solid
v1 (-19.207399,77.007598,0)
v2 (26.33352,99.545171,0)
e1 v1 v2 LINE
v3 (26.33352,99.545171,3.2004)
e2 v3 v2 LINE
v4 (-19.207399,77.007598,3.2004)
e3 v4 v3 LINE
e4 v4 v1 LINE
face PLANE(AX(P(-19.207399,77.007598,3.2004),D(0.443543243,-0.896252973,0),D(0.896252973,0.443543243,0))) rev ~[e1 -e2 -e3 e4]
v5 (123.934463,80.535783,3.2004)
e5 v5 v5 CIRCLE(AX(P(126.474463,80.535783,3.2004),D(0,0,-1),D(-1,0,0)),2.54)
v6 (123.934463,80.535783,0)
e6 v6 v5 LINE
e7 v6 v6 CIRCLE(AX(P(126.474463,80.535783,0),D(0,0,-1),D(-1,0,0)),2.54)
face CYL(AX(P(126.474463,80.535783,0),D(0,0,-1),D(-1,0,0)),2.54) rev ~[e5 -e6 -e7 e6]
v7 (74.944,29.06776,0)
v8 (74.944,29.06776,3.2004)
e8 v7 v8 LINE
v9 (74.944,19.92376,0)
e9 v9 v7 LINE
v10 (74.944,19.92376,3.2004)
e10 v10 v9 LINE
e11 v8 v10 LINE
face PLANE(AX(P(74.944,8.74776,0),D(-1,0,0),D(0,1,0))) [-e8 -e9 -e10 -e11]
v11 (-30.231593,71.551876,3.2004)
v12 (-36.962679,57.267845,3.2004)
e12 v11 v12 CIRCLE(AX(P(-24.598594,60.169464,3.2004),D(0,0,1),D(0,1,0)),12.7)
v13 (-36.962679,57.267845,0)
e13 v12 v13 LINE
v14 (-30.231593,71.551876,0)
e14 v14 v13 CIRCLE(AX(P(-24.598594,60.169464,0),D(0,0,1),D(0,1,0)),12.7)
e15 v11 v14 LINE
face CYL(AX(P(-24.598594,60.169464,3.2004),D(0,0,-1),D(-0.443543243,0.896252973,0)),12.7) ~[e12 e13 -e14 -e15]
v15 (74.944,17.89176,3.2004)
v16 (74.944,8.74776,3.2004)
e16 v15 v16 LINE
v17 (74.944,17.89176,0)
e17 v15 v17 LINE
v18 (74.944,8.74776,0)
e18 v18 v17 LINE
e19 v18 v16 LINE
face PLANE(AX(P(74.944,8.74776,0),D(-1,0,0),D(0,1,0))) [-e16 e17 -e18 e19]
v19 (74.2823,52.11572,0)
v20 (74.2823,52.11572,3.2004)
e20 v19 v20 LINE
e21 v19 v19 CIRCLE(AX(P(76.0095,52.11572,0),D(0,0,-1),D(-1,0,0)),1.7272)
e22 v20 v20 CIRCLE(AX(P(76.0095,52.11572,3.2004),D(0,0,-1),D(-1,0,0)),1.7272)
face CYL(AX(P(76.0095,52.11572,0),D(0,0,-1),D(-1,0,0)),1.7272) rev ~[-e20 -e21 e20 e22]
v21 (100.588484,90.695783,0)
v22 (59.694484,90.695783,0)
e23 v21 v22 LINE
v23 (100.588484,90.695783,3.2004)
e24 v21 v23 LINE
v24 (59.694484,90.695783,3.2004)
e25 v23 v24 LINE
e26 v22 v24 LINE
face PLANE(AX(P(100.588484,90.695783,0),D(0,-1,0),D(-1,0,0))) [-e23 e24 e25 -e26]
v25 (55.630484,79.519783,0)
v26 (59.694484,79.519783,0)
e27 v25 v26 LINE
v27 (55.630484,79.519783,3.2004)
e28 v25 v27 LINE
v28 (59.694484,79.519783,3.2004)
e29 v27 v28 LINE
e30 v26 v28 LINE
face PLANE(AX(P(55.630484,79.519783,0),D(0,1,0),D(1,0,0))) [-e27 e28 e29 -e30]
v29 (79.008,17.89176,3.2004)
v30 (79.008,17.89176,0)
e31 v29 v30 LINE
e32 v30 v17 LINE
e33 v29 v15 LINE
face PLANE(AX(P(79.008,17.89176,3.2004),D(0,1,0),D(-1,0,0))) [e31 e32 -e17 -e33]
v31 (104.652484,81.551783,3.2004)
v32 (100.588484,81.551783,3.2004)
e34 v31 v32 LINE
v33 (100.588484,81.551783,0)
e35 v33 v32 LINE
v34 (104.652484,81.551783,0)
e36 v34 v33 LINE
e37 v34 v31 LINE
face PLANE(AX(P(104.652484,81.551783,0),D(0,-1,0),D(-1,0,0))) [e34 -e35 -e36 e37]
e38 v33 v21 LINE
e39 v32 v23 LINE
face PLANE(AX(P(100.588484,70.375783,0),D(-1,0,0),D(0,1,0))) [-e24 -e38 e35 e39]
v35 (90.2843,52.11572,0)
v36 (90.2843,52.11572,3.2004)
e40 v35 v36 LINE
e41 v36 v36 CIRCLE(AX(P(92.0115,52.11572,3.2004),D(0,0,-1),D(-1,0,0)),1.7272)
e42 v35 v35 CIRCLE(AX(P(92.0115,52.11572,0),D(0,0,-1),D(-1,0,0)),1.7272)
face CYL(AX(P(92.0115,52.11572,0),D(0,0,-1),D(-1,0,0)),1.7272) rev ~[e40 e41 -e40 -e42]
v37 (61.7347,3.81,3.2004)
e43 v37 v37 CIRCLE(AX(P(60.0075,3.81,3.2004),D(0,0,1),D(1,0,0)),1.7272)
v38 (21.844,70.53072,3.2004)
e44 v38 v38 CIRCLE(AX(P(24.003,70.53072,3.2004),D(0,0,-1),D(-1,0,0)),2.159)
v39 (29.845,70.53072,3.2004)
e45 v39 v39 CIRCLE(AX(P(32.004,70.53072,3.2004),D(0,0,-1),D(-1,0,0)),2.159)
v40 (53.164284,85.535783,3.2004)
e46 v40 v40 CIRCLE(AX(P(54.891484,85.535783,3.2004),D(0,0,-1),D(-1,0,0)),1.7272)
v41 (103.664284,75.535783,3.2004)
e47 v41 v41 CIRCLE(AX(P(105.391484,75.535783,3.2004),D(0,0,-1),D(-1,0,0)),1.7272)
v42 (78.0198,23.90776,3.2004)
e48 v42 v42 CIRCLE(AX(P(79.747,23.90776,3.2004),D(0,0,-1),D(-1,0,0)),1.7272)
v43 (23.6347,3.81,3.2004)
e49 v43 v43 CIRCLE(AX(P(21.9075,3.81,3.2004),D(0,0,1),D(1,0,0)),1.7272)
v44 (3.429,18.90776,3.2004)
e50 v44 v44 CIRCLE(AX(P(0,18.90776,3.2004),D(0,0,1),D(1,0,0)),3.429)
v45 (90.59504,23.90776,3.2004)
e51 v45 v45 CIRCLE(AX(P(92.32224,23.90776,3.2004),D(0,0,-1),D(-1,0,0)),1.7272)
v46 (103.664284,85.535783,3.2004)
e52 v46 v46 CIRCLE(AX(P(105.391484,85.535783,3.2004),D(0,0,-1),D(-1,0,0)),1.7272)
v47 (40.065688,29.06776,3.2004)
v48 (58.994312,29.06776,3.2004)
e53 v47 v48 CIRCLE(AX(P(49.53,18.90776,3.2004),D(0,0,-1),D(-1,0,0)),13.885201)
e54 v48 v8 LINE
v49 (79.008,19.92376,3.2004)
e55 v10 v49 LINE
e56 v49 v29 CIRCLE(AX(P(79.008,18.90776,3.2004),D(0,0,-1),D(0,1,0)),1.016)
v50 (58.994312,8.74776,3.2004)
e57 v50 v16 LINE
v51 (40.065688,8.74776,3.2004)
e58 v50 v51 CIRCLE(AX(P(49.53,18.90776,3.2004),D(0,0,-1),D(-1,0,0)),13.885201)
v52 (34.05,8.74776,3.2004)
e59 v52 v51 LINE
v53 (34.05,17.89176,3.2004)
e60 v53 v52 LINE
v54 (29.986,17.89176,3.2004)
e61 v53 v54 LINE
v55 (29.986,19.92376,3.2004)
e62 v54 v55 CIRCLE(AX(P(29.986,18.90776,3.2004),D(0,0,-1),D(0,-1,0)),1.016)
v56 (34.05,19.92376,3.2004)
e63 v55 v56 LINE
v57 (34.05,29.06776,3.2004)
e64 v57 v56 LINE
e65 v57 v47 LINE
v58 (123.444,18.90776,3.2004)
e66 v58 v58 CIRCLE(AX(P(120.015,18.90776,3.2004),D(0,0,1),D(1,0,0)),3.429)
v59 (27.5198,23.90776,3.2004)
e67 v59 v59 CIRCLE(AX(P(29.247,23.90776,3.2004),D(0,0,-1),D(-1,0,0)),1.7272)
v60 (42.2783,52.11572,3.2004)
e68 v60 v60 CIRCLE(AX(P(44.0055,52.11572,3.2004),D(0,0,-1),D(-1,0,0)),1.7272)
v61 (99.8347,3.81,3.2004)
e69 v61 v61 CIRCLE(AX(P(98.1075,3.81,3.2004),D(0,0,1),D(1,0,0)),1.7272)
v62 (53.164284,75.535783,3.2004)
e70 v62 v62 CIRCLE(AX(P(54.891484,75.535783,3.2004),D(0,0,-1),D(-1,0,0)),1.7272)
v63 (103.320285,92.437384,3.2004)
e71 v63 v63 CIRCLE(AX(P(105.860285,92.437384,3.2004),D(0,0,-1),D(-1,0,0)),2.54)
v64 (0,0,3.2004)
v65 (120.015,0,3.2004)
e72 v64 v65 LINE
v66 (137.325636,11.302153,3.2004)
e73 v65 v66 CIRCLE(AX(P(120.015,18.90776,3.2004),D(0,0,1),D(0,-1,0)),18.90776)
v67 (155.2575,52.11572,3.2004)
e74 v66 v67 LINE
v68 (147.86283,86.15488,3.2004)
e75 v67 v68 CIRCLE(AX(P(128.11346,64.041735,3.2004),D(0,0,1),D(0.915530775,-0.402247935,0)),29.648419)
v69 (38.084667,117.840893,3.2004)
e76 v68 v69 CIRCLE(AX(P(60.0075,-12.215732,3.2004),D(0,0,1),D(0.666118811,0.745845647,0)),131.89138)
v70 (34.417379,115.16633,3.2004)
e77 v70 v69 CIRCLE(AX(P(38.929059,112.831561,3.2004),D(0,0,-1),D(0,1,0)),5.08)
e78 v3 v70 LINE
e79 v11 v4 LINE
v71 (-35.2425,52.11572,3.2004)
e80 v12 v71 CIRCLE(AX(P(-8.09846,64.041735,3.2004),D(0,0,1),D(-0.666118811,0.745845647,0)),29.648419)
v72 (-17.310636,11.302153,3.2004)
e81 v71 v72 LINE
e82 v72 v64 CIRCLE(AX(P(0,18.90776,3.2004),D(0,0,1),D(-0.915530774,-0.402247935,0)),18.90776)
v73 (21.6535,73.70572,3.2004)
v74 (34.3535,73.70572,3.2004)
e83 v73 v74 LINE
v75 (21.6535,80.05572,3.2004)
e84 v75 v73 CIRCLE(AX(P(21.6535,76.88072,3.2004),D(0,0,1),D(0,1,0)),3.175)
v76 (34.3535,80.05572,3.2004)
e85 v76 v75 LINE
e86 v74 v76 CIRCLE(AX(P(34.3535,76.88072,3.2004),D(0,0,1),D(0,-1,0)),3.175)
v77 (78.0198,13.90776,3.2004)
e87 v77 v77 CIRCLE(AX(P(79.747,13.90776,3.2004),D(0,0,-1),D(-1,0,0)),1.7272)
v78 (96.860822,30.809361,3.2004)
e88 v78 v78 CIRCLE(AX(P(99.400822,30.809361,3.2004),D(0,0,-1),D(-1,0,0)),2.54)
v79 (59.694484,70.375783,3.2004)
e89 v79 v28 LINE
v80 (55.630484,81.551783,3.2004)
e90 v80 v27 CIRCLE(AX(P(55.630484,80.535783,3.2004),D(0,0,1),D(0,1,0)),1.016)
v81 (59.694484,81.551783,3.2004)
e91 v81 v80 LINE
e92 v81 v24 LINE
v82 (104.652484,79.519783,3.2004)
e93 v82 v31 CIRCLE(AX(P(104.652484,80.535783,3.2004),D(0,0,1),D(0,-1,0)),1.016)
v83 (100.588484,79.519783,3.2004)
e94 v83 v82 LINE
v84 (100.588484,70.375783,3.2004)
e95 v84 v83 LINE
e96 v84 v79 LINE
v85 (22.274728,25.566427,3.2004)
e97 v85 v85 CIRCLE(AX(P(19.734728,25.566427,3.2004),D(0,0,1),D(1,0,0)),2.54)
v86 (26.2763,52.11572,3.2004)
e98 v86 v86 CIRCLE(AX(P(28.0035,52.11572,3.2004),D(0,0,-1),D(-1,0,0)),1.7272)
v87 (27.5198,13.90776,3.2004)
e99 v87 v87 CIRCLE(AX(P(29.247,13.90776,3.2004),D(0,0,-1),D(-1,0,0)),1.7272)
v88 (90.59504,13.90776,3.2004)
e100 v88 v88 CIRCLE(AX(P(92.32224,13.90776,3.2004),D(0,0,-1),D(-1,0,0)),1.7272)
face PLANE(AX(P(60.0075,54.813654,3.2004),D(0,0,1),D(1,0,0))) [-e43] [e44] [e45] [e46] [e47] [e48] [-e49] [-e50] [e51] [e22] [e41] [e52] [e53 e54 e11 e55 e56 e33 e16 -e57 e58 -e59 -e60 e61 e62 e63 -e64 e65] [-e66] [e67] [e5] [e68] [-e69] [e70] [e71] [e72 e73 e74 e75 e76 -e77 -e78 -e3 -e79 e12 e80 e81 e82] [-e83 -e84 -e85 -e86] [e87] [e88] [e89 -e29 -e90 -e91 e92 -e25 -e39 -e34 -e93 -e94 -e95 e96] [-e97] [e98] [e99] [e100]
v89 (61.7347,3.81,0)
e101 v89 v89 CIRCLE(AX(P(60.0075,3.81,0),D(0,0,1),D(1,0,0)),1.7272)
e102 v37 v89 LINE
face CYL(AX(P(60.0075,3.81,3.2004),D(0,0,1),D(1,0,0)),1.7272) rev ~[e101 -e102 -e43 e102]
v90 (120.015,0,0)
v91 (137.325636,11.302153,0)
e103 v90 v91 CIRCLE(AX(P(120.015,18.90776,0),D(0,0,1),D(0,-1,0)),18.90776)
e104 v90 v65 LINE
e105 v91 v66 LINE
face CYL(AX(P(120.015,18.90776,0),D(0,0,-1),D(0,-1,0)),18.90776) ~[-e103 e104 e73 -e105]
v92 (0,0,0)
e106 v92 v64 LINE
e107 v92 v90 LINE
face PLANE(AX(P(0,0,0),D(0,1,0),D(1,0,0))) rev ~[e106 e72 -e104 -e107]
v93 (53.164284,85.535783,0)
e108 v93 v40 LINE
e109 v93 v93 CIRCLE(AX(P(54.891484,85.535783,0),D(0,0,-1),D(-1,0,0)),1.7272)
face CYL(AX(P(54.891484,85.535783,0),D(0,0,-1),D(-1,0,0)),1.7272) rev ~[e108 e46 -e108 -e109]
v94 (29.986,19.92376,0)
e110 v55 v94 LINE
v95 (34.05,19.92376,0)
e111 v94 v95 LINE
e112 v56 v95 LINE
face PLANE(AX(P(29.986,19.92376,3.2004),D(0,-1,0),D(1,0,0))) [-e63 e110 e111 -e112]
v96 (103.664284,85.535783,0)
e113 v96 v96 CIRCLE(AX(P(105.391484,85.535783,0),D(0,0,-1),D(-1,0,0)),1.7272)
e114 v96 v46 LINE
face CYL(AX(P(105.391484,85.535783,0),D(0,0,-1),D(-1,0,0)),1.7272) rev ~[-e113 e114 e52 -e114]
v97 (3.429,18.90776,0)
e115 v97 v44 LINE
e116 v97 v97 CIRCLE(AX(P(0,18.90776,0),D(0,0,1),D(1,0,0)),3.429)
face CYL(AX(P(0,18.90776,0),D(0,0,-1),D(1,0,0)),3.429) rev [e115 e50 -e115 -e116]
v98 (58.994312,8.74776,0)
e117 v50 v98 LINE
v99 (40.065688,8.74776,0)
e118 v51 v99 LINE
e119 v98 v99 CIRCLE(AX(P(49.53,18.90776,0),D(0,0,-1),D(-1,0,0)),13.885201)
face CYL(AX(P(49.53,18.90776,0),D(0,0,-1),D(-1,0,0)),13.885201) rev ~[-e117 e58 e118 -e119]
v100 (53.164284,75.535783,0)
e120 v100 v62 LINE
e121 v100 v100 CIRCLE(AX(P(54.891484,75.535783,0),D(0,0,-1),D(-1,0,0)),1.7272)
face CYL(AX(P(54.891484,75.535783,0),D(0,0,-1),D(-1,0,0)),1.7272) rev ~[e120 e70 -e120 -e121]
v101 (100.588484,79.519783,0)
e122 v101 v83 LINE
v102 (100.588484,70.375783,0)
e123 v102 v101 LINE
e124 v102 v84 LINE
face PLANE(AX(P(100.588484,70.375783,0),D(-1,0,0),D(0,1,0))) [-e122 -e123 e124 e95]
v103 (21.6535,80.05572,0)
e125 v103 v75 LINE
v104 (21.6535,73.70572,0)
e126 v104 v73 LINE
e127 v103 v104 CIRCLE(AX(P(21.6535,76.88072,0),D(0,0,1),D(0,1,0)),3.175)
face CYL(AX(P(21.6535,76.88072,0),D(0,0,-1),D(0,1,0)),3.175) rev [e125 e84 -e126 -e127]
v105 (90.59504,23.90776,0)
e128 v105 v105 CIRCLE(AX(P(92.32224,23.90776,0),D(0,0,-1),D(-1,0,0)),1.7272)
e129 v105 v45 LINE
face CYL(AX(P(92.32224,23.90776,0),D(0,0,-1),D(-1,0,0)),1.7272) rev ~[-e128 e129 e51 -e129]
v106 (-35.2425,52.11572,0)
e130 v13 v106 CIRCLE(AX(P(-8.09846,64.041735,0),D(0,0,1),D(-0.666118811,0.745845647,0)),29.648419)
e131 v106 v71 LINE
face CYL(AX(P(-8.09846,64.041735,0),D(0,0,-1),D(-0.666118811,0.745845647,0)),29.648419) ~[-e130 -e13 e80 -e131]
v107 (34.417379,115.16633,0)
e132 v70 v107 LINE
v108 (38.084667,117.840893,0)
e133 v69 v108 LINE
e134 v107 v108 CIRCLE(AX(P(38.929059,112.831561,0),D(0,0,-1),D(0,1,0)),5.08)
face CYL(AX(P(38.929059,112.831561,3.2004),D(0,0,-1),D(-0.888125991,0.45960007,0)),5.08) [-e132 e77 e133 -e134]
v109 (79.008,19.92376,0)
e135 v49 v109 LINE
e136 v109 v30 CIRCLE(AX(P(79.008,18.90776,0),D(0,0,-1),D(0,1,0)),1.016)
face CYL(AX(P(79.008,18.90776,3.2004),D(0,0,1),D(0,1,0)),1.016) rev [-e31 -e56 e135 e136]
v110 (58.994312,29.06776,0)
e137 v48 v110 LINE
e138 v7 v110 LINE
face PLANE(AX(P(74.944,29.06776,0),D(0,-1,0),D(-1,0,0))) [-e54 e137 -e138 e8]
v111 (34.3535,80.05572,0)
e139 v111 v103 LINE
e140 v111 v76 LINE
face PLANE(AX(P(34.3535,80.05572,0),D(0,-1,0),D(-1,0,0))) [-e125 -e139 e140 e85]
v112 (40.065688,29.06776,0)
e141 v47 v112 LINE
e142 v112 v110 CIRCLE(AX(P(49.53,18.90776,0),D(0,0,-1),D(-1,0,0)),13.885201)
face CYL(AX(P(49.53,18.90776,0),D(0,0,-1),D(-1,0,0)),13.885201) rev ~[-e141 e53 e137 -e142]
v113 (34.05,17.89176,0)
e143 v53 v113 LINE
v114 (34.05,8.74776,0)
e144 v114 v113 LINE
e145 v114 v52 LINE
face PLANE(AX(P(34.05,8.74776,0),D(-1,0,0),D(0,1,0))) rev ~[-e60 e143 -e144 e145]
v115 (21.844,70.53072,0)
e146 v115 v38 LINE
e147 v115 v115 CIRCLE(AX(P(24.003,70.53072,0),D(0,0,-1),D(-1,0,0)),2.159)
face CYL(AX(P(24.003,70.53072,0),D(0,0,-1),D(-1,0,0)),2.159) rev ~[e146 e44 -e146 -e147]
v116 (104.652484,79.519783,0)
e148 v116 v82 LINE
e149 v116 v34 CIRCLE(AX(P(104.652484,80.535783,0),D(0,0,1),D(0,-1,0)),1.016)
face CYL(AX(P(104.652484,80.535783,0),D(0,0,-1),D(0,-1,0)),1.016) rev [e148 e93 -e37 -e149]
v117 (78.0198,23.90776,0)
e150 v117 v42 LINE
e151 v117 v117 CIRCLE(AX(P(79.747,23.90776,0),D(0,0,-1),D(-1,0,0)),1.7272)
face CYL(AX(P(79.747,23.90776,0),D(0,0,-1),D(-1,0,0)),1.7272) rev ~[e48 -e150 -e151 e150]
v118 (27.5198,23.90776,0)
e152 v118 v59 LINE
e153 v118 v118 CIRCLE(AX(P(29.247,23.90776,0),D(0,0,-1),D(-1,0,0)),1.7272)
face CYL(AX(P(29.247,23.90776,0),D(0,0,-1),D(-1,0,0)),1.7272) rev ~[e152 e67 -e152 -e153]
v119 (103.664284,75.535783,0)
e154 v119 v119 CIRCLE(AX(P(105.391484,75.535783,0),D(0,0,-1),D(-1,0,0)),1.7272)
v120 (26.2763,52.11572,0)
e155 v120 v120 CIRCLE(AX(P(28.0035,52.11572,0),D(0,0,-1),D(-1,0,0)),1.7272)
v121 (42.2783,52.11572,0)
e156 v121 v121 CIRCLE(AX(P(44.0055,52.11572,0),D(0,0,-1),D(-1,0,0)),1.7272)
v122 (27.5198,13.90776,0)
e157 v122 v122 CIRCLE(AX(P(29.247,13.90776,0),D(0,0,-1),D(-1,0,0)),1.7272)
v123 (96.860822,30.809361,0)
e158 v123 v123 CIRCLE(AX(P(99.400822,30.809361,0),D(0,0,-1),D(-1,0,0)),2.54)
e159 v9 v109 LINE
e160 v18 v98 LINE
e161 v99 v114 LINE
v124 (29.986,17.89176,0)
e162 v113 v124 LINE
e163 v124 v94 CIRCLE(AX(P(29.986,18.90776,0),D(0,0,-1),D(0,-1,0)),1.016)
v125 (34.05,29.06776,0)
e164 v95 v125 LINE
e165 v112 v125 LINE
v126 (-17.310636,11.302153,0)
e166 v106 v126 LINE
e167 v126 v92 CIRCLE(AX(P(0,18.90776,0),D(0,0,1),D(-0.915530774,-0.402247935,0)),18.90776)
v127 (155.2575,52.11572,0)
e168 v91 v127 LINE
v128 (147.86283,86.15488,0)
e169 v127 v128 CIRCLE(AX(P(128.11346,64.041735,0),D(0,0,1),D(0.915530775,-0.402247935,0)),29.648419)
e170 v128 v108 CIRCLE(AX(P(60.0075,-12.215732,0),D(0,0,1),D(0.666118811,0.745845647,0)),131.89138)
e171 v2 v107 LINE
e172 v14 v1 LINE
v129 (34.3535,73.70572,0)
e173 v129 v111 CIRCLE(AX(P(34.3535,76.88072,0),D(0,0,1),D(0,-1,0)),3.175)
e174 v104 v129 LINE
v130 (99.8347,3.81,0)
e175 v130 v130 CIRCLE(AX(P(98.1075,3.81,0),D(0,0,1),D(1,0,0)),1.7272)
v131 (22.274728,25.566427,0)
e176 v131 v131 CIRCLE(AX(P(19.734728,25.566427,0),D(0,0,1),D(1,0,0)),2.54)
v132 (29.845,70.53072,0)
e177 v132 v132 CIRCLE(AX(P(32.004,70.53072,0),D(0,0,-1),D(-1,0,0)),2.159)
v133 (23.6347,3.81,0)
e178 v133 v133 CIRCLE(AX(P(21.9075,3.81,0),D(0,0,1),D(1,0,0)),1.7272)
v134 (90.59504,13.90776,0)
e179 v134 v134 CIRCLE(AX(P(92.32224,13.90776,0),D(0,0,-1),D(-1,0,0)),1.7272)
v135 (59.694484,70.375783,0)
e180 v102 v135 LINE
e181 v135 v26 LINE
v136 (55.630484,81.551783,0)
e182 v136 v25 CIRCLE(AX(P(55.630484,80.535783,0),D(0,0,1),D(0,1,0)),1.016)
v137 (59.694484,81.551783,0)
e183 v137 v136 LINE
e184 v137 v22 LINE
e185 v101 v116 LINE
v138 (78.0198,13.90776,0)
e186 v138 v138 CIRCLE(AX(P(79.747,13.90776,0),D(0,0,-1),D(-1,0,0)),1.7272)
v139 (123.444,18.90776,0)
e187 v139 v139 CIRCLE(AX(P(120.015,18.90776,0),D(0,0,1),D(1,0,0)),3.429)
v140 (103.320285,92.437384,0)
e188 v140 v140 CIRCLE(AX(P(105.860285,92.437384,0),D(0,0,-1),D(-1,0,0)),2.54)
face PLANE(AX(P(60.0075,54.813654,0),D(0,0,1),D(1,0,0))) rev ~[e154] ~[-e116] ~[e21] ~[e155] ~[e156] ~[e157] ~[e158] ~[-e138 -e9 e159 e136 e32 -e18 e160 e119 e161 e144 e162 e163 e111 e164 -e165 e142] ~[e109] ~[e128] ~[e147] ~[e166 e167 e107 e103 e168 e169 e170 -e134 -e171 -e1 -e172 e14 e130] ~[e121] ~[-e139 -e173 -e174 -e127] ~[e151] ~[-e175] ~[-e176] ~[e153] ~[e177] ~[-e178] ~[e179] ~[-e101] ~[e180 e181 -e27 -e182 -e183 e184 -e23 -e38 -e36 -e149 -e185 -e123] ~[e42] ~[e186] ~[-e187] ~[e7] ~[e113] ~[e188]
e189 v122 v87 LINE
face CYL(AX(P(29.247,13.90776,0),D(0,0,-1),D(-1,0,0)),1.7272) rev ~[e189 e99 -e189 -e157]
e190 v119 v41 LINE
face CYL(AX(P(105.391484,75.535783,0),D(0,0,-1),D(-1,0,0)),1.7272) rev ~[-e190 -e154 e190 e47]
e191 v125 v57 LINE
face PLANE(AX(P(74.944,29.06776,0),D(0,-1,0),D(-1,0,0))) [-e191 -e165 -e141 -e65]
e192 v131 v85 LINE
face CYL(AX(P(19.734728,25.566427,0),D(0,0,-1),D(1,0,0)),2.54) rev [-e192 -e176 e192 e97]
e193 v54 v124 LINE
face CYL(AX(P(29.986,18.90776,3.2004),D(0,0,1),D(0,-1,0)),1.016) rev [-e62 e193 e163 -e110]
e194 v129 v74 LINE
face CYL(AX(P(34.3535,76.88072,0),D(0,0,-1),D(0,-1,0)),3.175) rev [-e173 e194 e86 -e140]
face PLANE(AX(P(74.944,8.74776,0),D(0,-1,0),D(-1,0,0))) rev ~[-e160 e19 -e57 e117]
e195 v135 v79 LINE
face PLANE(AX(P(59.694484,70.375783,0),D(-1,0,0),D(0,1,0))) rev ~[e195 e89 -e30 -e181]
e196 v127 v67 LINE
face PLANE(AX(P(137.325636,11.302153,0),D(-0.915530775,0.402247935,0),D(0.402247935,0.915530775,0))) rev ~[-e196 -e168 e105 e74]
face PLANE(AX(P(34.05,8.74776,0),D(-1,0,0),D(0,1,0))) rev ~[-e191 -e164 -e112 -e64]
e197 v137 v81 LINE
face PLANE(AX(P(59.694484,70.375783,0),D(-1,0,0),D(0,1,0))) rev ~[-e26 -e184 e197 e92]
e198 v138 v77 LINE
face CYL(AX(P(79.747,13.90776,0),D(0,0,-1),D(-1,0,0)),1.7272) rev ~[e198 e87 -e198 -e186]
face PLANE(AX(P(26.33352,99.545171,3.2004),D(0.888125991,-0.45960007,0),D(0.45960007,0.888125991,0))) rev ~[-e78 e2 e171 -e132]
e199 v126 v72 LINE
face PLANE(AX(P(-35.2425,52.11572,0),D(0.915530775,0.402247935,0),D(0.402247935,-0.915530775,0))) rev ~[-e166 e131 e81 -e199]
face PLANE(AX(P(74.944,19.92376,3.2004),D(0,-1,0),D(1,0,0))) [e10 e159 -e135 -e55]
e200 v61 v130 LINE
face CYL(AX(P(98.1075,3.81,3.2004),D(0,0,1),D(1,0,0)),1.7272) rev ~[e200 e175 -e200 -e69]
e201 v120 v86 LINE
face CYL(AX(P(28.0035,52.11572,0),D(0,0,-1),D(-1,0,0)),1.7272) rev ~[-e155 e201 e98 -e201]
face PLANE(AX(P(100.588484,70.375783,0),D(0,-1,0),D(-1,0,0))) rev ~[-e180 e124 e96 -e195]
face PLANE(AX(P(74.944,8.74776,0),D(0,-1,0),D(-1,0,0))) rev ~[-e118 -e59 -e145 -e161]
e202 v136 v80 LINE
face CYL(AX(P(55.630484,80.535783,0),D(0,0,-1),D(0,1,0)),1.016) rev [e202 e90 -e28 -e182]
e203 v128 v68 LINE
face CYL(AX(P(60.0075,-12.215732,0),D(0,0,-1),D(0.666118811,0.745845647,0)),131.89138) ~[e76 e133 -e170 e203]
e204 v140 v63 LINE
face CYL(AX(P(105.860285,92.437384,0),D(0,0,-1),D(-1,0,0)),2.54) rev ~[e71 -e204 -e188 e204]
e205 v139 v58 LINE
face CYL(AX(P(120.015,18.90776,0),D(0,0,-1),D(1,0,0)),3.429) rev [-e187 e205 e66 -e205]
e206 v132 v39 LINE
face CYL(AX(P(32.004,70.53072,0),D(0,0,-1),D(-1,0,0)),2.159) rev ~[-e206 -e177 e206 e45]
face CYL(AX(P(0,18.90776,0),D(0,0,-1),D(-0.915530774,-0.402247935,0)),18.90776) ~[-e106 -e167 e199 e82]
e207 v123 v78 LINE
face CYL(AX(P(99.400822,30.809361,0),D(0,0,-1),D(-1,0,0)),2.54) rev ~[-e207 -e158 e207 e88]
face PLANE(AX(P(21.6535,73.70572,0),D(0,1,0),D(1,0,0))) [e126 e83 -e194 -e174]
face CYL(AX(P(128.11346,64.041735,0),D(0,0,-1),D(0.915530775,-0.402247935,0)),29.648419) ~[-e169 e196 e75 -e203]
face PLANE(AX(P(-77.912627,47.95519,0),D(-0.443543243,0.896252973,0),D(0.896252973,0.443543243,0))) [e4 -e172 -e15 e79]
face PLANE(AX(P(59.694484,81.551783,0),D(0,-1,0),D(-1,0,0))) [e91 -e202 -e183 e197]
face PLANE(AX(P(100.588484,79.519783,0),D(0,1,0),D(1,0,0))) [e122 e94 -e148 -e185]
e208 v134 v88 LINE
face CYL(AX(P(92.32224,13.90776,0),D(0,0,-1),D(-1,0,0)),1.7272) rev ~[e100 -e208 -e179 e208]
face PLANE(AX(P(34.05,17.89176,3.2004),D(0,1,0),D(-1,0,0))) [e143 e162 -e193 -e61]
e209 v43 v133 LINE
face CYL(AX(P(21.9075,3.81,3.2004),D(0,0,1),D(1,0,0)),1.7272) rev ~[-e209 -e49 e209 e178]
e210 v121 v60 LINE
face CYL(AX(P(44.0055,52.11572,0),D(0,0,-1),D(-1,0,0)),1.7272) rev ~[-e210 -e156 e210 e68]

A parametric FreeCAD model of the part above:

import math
import FreeCAD as App
import Part
import Sketcher

V = App.Vector
Q = App.Units.Quantity


def edges_at(feature, points):
    """Names of the edges that pass closest to the given points."""
    edges = feature.Shape.Edges
    near = lambda p: min(range(len(edges)), key=lambda i: edges[i].distToShape(Part.Vertex(*p))[0])
    return sorted({f"Edge{near(p) + 1}" for p in points})

doc = App.newDocument("Part")
body = doc.addObject("PartDesign::Body", "Body")

sketch1 = body.newObject("Sketcher::SketchObject", "Sketch")
sketch1.AttachmentSupport = (doc.getObject("XY_Plane"), [""])
sketch1.MapMode = "FlatFace"
sketch1.addGeometry([
    Part.LineSegment(V(0, 0, 0), V(120.015, 0, 0)),
    Part.ArcOfCircle(Part.Circle(V(120.015, 18.90776, 0), V(0, 0, 1), 18.90776), math.radians(-90), math.radians(-23.718783)),
    Part.LineSegment(V(137.325636, 11.302153, 0), V(155.2575, 52.11572, 0)),
    Part.ArcOfCircle(Part.Circle(V(128.11346, 64.041735, 0), V(0, 0, 1), 29.648419), math.radians(-23.718783), math.radians(48.231785)),
    Part.ArcOfCircle(Part.Circle(V(60.0075, -12.215732, 0), V(0, 0, 1), 131.89138), math.radians(48.231785), math.radians(131.768215)),
    Part.ArcOfCircle(Part.Circle(V(-8.09846, 64.041735, 0), V(0, 0, 1), 29.648419), math.radians(131.768215), math.radians(203.718783)),
    Part.LineSegment(V(-35.2425, 52.11572, 0), V(-17.310636, 11.302153, 0)),
    Part.ArcOfCircle(Part.Circle(V(0, 18.90776, 0), V(0, 0, 1), 18.90776), math.radians(-156.281217), math.radians(-90)),
    Part.Circle(V(0, 18.90776, 0), V(0, 0, 1), 3.429),
    Part.Circle(V(120.015, 18.90776, 0), V(0, 0, 1), 3.429),
    Part.Circle(V(19.734728, 25.566427, 0), V(0, 0, 1), 2.54),
], False)
sketch1.addConstraint([
    Sketcher.Constraint("Tangent", 0, 2, 1, 1),
    Sketcher.Constraint("Tangent", 1, 2, 2, 1),
    Sketcher.Constraint("Tangent", 2, 2, 3, 1),
    Sketcher.Constraint("Tangent", 3, 2, 4, 1),
    Sketcher.Constraint("Tangent", 4, 2, 5, 1),
    Sketcher.Constraint("Tangent", 5, 2, 6, 1),
    Sketcher.Constraint("Tangent", 6, 2, 7, 1),
    Sketcher.Constraint("Tangent", 7, 2, 0, 1),
    Sketcher.Constraint("Horizontal", 0),
    Sketcher.Constraint("Coincident", 7, 2, -1, 1),
    Sketcher.Constraint("Coincident", 8, 3, 7, 3),
    Sketcher.Constraint("Coincident", 9, 3, 1, 3),
    Sketcher.Constraint("Equal", 3, 5),
    Sketcher.Constraint("Equal", 1, 7),
    Sketcher.Constraint("Equal", 8, 9),
    Sketcher.Constraint("Horizontal", 3, 3, 5, 3),
    Sketcher.Constraint("Horizontal", 2, 2, 5, 2),
    Sketcher.Constraint("Diameter", 10, Q("0.2 in")),
    Sketcher.Constraint("Diameter", 8, Q("0.27 in")),
    Sketcher.Constraint("Radius", 1, Q("0.7444 in")),
    Sketcher.Constraint("DistanceX", 0, 1, 0, 2, Q("4.725 in")),
    Sketcher.Constraint("Radius", 3, Q("29.648419 mm")),
    Sketcher.Constraint("Radius", 4, Q("131.89138 mm")),
    Sketcher.Constraint("DistanceX", -1, 1, 2, 2, Q("6.1125 in")),
    Sketcher.Constraint("DistanceY", -1, 1, 2, 2, Q("2.0518 in")),
    Sketcher.Constraint("DistanceY", 10, 3, 5, 3, Q("38.475308 mm")),
    Sketcher.Constraint("DistanceX", -1, 1, 10, 3, Q("19.734728 mm")),
])
pad1 = body.newObject("PartDesign::Pad", "Pad")
pad1.Profile = sketch1
pad1.Length = Q("0.126 in")

sketch2 = body.newObject("Sketcher::SketchObject", "Sketch001")
sketch2.AttachmentSupport = (doc.getObject("XY_Plane"), [""])
sketch2.MapMode = "FlatFace"
sketch2.addGeometry([
    Part.Circle(V(92.0115, 52.11572, 0), V(0, 0, 1), 1.7272),
    Part.Circle(V(76.0095, 52.11572, 0), V(0, 0, 1), 1.7272),
    Part.Circle(V(44.0055, 52.11572, 0), V(0, 0, 1), 1.7272),
    Part.Circle(V(28.0035, 52.11572, 0), V(0, 0, 1), 1.7272),
], False)
sketch2.addConstraint([
    Sketcher.Constraint("Equal", 0, 1),
    Sketcher.Constraint("Equal", 1, 2),
    Sketcher.Constraint("Equal", 2, 3),
    Sketcher.Constraint("Horizontal", 0, 3, 1, 3),
    Sketcher.Constraint("Horizontal", 1, 3, 2, 3),
    Sketcher.Constraint("Horizontal", 2, 3, 3, 3),
    Sketcher.Constraint("Diameter", 0, Q("0.136 in")),
    Sketcher.Constraint("DistanceX", 1, 3, 0, 3, Q("0.63 in")),
    Sketcher.Constraint("DistanceX", 2, 3, 1, 3, Q("1.26 in")),
    Sketcher.Constraint("DistanceX", 3, 3, 2, 3, Q("0.63 in")),
    Sketcher.Constraint("DistanceX", -1, 1, 0, 3, Q("3.6225 in")),
    Sketcher.Constraint("DistanceY", -1, 1, 0, 3, Q("2.0518 in")),
])
pocket1 = body.newObject("PartDesign::Pocket", "Pocket")
pocket1.Profile = sketch2
pocket1.Length = Q("0.126 in")
pocket1.Reversed = True

sketch3 = body.newObject("Sketcher::SketchObject", "Sketch002")
sketch3.AttachmentSupport = (doc.getObject("XY_Plane"), [""])
sketch3.MapMode = "FlatFace"
sketch3.addGeometry([
    Part.Circle(V(79.747, 23.90776, 0), V(0, 0, 1), 1.7272),
    Part.Circle(V(29.247, 13.90776, 0), V(0, 0, 1), 1.7272),
    Part.Circle(V(29.247, 23.90776, 0), V(0, 0, 1), 1.7272),
    Part.Circle(V(79.747, 13.90776, 0), V(0, 0, 1), 1.7272),
    Part.Circle(V(92.32224, 23.90776, 0), V(0, 0, 1), 1.7272),
    Part.Circle(V(92.32224, 13.90776, 0), V(0, 0, 1), 1.7272),
    Part.LineSegment(V(74.944, 29.06776, 0), V(74.944, 8.74776, 0)),
    Part.LineSegment(V(74.944, 8.74776, 0), V(34.05, 8.74776, 0)),
    Part.LineSegment(V(34.05, 8.74776, 0), V(34.05, 29.06776, 0)),
    Part.LineSegment(V(34.05, 29.06776, 0), V(74.944, 29.06776, 0)),
], False)
sketch3.addConstraint([
    Sketcher.Constraint("Coincident", 6, 2, 7, 1),
    Sketcher.Constraint("Coincident", 7, 2, 8, 1),
    Sketcher.Constraint("Coincident", 8, 2, 9, 1),
    Sketcher.Constraint("Coincident", 9, 2, 6, 1),
    Sketcher.Constraint("Vertical", 6),
    Sketcher.Constraint("Horizontal", 7),
    Sketcher.Constraint("Vertical", 8),
    Sketcher.Constraint("Horizontal", 9),
    Sketcher.Constraint("Equal", 0, 1),
    Sketcher.Constraint("Equal", 1, 2),
    Sketcher.Constraint("Equal", 2, 3),
    Sketcher.Constraint("Equal", 3, 4),
    Sketcher.Constraint("Equal", 4, 5),
    Sketcher.Constraint("Horizontal", 0, 3, 2, 3),
    Sketcher.Constraint("Horizontal", 1, 3, 3, 3),
    Sketcher.Constraint("Horizontal", 2, 3, 4, 3),
    Sketcher.Constraint("Horizontal", 3, 3, 5, 3),
    Sketcher.Constraint("Vertical", 1, 3, 2, 3),
    Sketcher.Constraint("Vertical", 0, 3, 3, 3),
    Sketcher.Constraint("Vertical", 4, 3, 5, 3),
    Sketcher.Constraint("Diameter", 0, Q("0.136 in")),
    Sketcher.Constraint("DistanceY", 6, 2, 6, 1, Q("0.8 in")),
    Sketcher.Constraint("DistanceX", 7, 2, 7, 1, Q("1.61 in")),
    Sketcher.Constraint("DistanceY", -1, 1, 6, 2, Q("0.3444 in")),
    Sketcher.Constraint("DistanceX", -1, 1, 0, 3, Q("79.747 mm")),
    Sketcher.Constraint("DistanceX", -1, 1, 1, 3, Q("29.247 mm")),
    Sketcher.Constraint("DistanceX", -1, 1, 6, 2, Q("74.944 mm")),
    Sketcher.Constraint("DistanceY", 1, 3, 0, 3, Q("10 mm")),
    Sketcher.Constraint("DistanceY", 6, 2, 3, 3, Q("5.16 mm")),
    Sketcher.Constraint("DistanceX", -1, 1, 4, 3, Q("92.32224 mm")),
])
pocket2 = body.newObject("PartDesign::Pocket", "Pocket001")
pocket2.Profile = sketch3
pocket2.Type = "ThroughAll"
pocket2.Reversed = True

sketch4 = body.newObject("Sketcher::SketchObject", "Sketch003")
sketch4.AttachmentSupport = (doc.getObject("XY_Plane"), [""])
sketch4.MapMode = "FlatFace"
sketch4.AttachmentOffset = App.Placement(V(0, 0, 0.126 * 25.4), App.Rotation())
sketch4.addGeometry([
    Part.LineSegment(V(34.05, 19.92376, 0), V(29.986, 19.92376, 0)),
    Part.ArcOfCircle(Part.Circle(V(29.986, 18.90776, 0), V(0, 0, 1), 1.016), math.radians(90), math.radians(270)),
    Part.LineSegment(V(29.986, 17.89176, 0), V(34.05, 17.89176, 0)),
    Part.LineSegment(V(34.05, 17.89176, 0), V(34.05, 19.92376, 0)),
    Part.LineSegment(V(79.008, 19.92376, 0), V(74.944, 19.92376, 0)),
    Part.LineSegment(V(74.944, 19.92376, 0), V(74.944, 17.89176, 0)),
    Part.LineSegment(V(74.944, 17.89176, 0), V(79.008, 17.89176, 0)),
    Part.ArcOfCircle(Part.Circle(V(79.008, 18.90776, 0), V(0, 0, 1), 1.016), math.radians(-90), math.radians(90)),
], False)
sketch4.addConstraint([
    Sketcher.Constraint("Tangent", 0, 2, 1, 1),
    Sketcher.Constraint("Tangent", 1, 2, 2, 1),
    Sketcher.Constraint("Coincident", 2, 2, 3, 1),
    Sketcher.Constraint("Coincident", 3, 2, 0, 1),
    Sketcher.Constraint("Coincident", 4, 2, 5, 1),
    Sketcher.Constraint("Coincident", 5, 2, 6, 1),
    Sketcher.Constraint("Tangent", 6, 2, 7, 1),
    Sketcher.Constraint("Tangent", 7, 2, 4, 1),
    Sketcher.Constraint("Horizontal", 0),
    Sketcher.Constraint("Horizontal", 2),
    Sketcher.Constraint("Vertical", 3),
    Sketcher.Constraint("Horizontal", 4),
    Sketcher.Constraint("Vertical", 5),
    Sketcher.Constraint("Horizontal", 6),
    Sketcher.Constraint("Equal", 1, 7),
    Sketcher.Constraint("Horizontal", 1, 3, 7, 3),
    Sketcher.Constraint("Equal", 2, 4),
    Sketcher.Constraint("Radius", 1, Q("0.04 in")),
    Sketcher.Constraint("DistanceX", 0, 2, 0, 1, Q("0.16 in")),
    Sketcher.Constraint("DistanceX", 1, 3, 7, 3, Q("1.93 in")),
    Sketcher.Constraint("DistanceY", -1, 1, 1, 3, Q("0.7444 in")),
    Sketcher.Constraint("DistanceX", -1, 1, 1, 3, Q("29.986 mm")),
])
pocket3 = body.newObject("PartDesign::Pocket", "Pocket002")
pocket3.Profile = sketch4
pocket3.Length = Q("0.126 in")

sketch5 = body.newObject("Sketcher::SketchObject", "Sketch004")
sketch5.AttachmentSupport = (doc.getObject("XY_Plane"), [""])
sketch5.MapMode = "FlatFace"
sketch5.AttachmentOffset = App.Placement(V(0, 0, 0.126 * 25.4), App.Rotation())
sketch5.addGeometry([
    Part.Circle(V(21.9075, 3.81, 0), V(0, 0, 1), 1.7272),
    Part.Circle(V(60.0075, 3.81, 0), V(0, 0, 1), 1.7272),
    Part.Circle(V(98.1075, 3.81, 0), V(0, 0, 1), 1.7272),
], False)
sketch5.addConstraint([
    Sketcher.Constraint("Equal", 0, 1),
    Sketcher.Constraint("Equal", 1, 2),
    Sketcher.Constraint("Horizontal", 0, 3, 1, 3),
    Sketcher.Constraint("Horizontal", 1, 3, 2, 3),
    Sketcher.Constraint("Diameter", 0, Q("0.136 in")),
    Sketcher.Constraint("DistanceX", 0, 3, 2, 3, Q("3 in")),
    Sketcher.Constraint("DistanceX", 0, 3, 1, 3, Q("1.5 in")),
    Sketcher.Constraint("DistanceY", -1, 1, 0, 3, Q("0.15 in")),
    Sketcher.Constraint("DistanceX", -1, 1, 0, 3, Q("0.8625 in")),
])
pocket4 = body.newObject("PartDesign::Pocket", "Pocket003")
pocket4.Profile = sketch5
pocket4.Length = Q("0.126 in")

sketch6 = body.newObject("Sketcher::SketchObject", "Sketch005")
sketch6.AttachmentSupport = (doc.getObject("XY_Plane"), [""])
sketch6.MapMode = "FlatFace"
sketch6.addGeometry([
    Part.Circle(V(105.391484, 85.535783, 0), V(0, 0, 1), 1.7272),
    Part.Circle(V(105.860285, 92.437384, 0), V(0, 0, 1), 2.54),
    Part.Circle(V(54.891484, 75.535783, 0), V(0, 0, 1), 1.7272),
    Part.Circle(V(54.891484, 85.535783, 0), V(0, 0, 1), 1.7272),
    Part.Circle(V(105.391484, 75.535783, 0), V(0, 0, 1), 1.7272),
    Part.Circle(V(126.474463, 80.535783, 0), V(0, 0, 1), 2.54),
    Part.LineSegment(V(100.588484, 90.695783, 0), V(100.588484, 70.375783, 0)),
    Part.LineSegment(V(100.588484, 70.375783, 0), V(59.694484, 70.375783, 0)),
    Part.LineSegment(V(59.694484, 70.375783, 0), V(59.694484, 90.695783, 0)),
    Part.LineSegment(V(59.694484, 90.695783, 0), V(100.588484, 90.695783, 0)),
], False)
sketch6.addConstraint([
    Sketcher.Constraint("Coincident", 6, 2, 7, 1),
    Sketcher.Constraint("Coincident", 7, 2, 8, 1),
    Sketcher.Constraint("Coincident", 8, 2, 9, 1),
    Sketcher.Constraint("Coincident", 9, 2, 6, 1),
    Sketcher.Constraint("Vertical", 6),
    Sketcher.Constraint("Horizontal", 7),
    Sketcher.Constraint("Vertical", 8),
    Sketcher.Constraint("Horizontal", 9),
    Sketcher.Constraint("Equal", 0, 2),
    Sketcher.Constraint("Equal", 2, 3),
    Sketcher.Constraint("Equal", 3, 4),
    Sketcher.Constraint("Equal", 1, 5),
    Sketcher.Constraint("Horizontal", 0, 3, 3, 3),
    Sketcher.Constraint("Horizontal", 2, 3, 4, 3),
    Sketcher.Constraint("Vertical", 2, 3, 3, 3),
    Sketcher.Constraint("Vertical", 0, 3, 4, 3),
    Sketcher.Constraint("Diameter", 1, Q("0.2 in")),
    Sketcher.Constraint("Diameter", 0, Q("0.136 in")),
    Sketcher.Constraint("DistanceY", 6, 2, 6, 1, Q("0.8 in")),
    Sketcher.Constraint("DistanceX", 7, 2, 7, 1, Q("1.61 in")),
    Sketcher.Constraint("DistanceY", 6, 2, 5, 3, Q("0.4 in")),
    Sketcher.Constraint("DistanceY", -1, 1, 5, 3, Q("3.1707001 in")),
    Sketcher.Constraint("DistanceX", 0, 3, 1, 3, Q("0.468801 mm")),
    Sketcher.Constraint("DistanceY", 0, 3, 1, 3, Q("6.901601 mm")),
    Sketcher.Constraint("DistanceX", 2, 3, 0, 3, Q("50.5 mm")),
    Sketcher.Constraint("DistanceY", 2, 3, 0, 3, Q("10 mm")),
    Sketcher.Constraint("DistanceY", 5, 3, 0, 3, Q("5 mm")),
    Sketcher.Constraint("DistanceX", 6, 2, 4, 3, Q("4.803 mm")),
    Sketcher.Constraint("DistanceX", 0, 3, 5, 3, Q("21.082979 mm")),
    Sketcher.Constraint("DistanceX", -1, 1, 0, 3, Q("105.391484 mm")),
])
pocket5 = body.newObject("PartDesign::Pocket", "Pocket004")
pocket5.Profile = sketch6
pocket5.Length = Q("0.126 in")
pocket5.Reversed = True

sketch7 = body.newObject("Sketcher::SketchObject", "Sketch006")
sketch7.AttachmentSupport = (doc.getObject("XY_Plane"), [""])
sketch7.MapMode = "FlatFace"
sketch7.AttachmentOffset = App.Placement(V(0, 0, 0.126 * 25.4), App.Rotation())
sketch7.addGeometry([
    Part.LineSegment(V(-24.969797, 88.651484, 0), V(-19.207399, 77.007598, 0)),
    Part.LineSegment(V(-19.207399, 77.007598, 0), V(26.33352, 99.545171, 0)),
    Part.LineSegment(V(26.33352, 99.545171, 0), V(35.569016, 117.39174, 0)),
    Part.ArcOfCircle(Part.Circle(V(60.0075, -12.215732, 0), V(0, 0, 1), 131.89138), math.radians(100.678187), math.radians(130.113031)),
], False)
sketch7.addConstraint([
    Sketcher.Constraint("Coincident", 0, 2, 1, 1),
    Sketcher.Constraint("Coincident", 1, 2, 2, 1),
    Sketcher.Constraint("Coincident", 2, 2, 3, 1),
    Sketcher.Constraint("Coincident", 3, 2, 0, 1),
    Sketcher.Constraint("Perpendicular", 0, 1),
    Sketcher.Constraint("Radius", 3, Q("131.89138 mm")),
    Sketcher.Constraint("DistanceX", -1, 1, 3, 3, Q("2.3625 in")),
    Sketcher.Constraint("DistanceX", 0, 2, -1, 1, Q("19.207399 mm")),
    Sketcher.Constraint("DistanceY", -1, 1, 0, 2, Q("77.007598 mm")),
    Sketcher.Constraint("DistanceX", 3, 2, 0, 2, Q("5.762398 mm")),
    Sketcher.Constraint("Distance", 0, Q("12.99174 mm")),
    Sketcher.Constraint("Distance", 1, Q("50.812572 mm")),
    Sketcher.Constraint("DistanceY", -1, 1, 2, 2, Q("117.39174 mm")),
])
pocket6 = body.newObject("PartDesign::Pocket", "Pocket005")
pocket6.Profile = sketch7
pocket6.Length = Q("0.126 in")
doc.recompute()

fillet = body.newObject("PartDesign::Fillet", "Fillet")
fillet.Base = (pocket6, edges_at(pocket6, [(35.569, 117.392, 1.6), (-24.97, 88.651, 1.6)]))
fillet.Radius = Q("0.2 in")

sketch8 = body.newObject("Sketcher::SketchObject", "Sketch007")
sketch8.AttachmentSupport = (doc.getObject("XY_Plane"), [""])
sketch8.MapMode = "FlatFace"
sketch8.addGeometry([
    Part.Circle(V(32.004, 70.53072, 0), V(0, 0, 1), 2.159),
    Part.Circle(V(24.003, 70.53072, 0), V(0, 0, 1), 2.159),
    Part.LineSegment(V(21.6535, 80.05572, 0), V(34.3535, 80.05572, 0)),
    Part.ArcOfCircle(Part.Circle(V(34.3535, 76.88072, 0), V(0, 0, 1), 3.175), math.radians(-90), math.radians(90)),
    Part.LineSegment(V(34.3535, 73.70572, 0), V(21.6535, 73.70572, 0)),
    Part.ArcOfCircle(Part.Circle(V(21.6535, 76.88072, 0), V(0, 0, 1), 3.175), math.radians(90), math.radians(270)),
], False)
sketch8.addConstraint([
    Sketcher.Constraint("Tangent", 2, 2, 3, 2),
    Sketcher.Constraint("Tangent", 3, 1, 4, 1),
    Sketcher.Constraint("Tangent", 4, 2, 5, 2),
    Sketcher.Constraint("Tangent", 5, 1, 2, 1),
    Sketcher.Constraint("Horizontal", 2),
    Sketcher.Constraint("Horizontal", 4),
    Sketcher.Constraint("Equal", 0, 1),
    Sketcher.Constraint("Horizontal", 0, 3, 1, 3),
    Sketcher.Constraint("Diameter", 0, Q("0.17 in")),
    Sketcher.Constraint("DistanceX", 2, 1, 2, 2, Q("0.5 in")),
    Sketcher.Constraint("Radius", 3, Q("0.125 in")),
    Sketcher.Constraint("DistanceX", -1, 1, 0, 3, Q("1.26 in")),
    Sketcher.Constraint("DistanceY", 0, 3, 3, 3, Q("0.25 in")),
    Sketcher.Constraint("DistanceX", -1, 1, 1, 3, Q("0.945 in")),
    Sketcher.Constraint("DistanceY", -1, 1, 0, 3, Q("2.7768 in")),
    Sketcher.Constraint("DistanceX", -1, 1, 3, 3, Q("1.3525 in")),
])
pocket7 = body.newObject("PartDesign::Pocket", "Pocket006")
pocket7.Profile = sketch8
pocket7.Length = Q("0.126 in")
pocket7.Reversed = True

sketch9 = body.newObject("Sketcher::SketchObject", "Sketch008")
sketch9.AttachmentSupport = (doc.getObject("XY_Plane"), [""])
sketch9.MapMode = "FlatFace"
sketch9.addGeometry([
    Part.LineSegment(V(100.588484, 81.551783, 0), V(104.652484, 81.551783, 0)),
    Part.ArcOfCircle(Part.Circle(V(104.652484, 80.535783, 0), V(0, 0, 1), 1.016), math.radians(-90), math.radians(90)),
    Part.LineSegment(V(104.652484, 79.519783, 0), V(100.588484, 79.519783, 0)),
    Part.LineSegment(V(100.588484, 79.519783, 0), V(100.588484, 81.551783, 0)),
    Part.LineSegment(V(55.630484, 81.551783, 0), V(59.694484, 81.551783, 0)),
    Part.LineSegment(V(59.694484, 81.551783, 0), V(59.694484, 79.519783, 0)),
    Part.LineSegment(V(59.694484, 79.519783, 0), V(55.630484, 79.519783, 0)),
    Part.ArcOfCircle(Part.Circle(V(55.630484, 80.535783, 0), V(0, 0, 1), 1.016), math.radians(90), math.radians(270)),
], False)
sketch9.addConstraint([
    Sketcher.Constraint("Tangent", 0, 2, 1, 2),
    Sketcher.Constraint("Tangent", 1, 1, 2, 1),
    Sketcher.Constraint("Coincident", 2, 2, 3, 1),
    Sketcher.Constraint("Coincident", 3, 2, 0, 1),
    Sketcher.Constraint("Coincident", 4, 2, 5, 1),
    Sketcher.Constraint("Coincident", 5, 2, 6, 1),
    Sketcher.Constraint("Tangent", 6, 2, 7, 2),
    Sketcher.Constraint("Tangent", 7, 1, 4, 1),
    Sketcher.Constraint("Horizontal", 0),
    Sketcher.Constraint("Horizontal", 2),
    Sketcher.Constraint("Vertical", 3),
    Sketcher.Constraint("Horizontal", 4),
    Sketcher.Constraint("Vertical", 5),
    Sketcher.Constraint("Horizontal", 6),
    Sketcher.Constraint("Equal", 1, 7),
    Sketcher.Constraint("Horizontal", 1, 3, 7, 3),
    Sketcher.Constraint("Equal", 2, 4),
    Sketcher.Constraint("Radius", 1, Q("0.04 in")),
    Sketcher.Constraint("DistanceX", 0, 1, 0, 2, Q("0.16 in")),
    Sketcher.Constraint("DistanceX", 7, 3, 1, 3, Q("1.93 in")),
    Sketcher.Constraint("DistanceY", -1, 1, 1, 3, Q("3.1707001 in")),
    Sketcher.Constraint("DistanceX", -1, 1, 1, 3, Q("104.652484 mm")),
])
pocket8 = body.newObject("PartDesign::Pocket", "Pocket007")
pocket8.Profile = sketch9
pocket8.Length = Q("0.126 in")
pocket8.Reversed = True

sketch10 = body.newObject("Sketcher::SketchObject", "Sketch009")
sketch10.AttachmentSupport = (doc.getObject("XY_Plane"), [""])
sketch10.MapMode = "FlatFace"
sketch10.addGeometry(Part.Circle(V(49.53, 18.90776, 0), V(0, 0, 1), 13.885201), False)
sketch10.addConstraint([
    Sketcher.Constraint("DistanceX", -1, 1, 0, 3, Q("1.95 in")),
    Sketcher.Constraint("Diameter", 0, Q("27.770402 mm")),
    Sketcher.Constraint("DistanceY", -1, 1, 0, 3, Q("0.7444 in")),
])
pocket9 = body.newObject("PartDesign::Pocket", "Pocket008")
pocket9.Profile = sketch10
pocket9.Length = Q("0.126 in")
pocket9.Reversed = True

sketch11 = body.newObject("Sketcher::SketchObject", "Sketch010")
sketch11.AttachmentSupport = (doc.getObject("XY_Plane"), [""])
sketch11.MapMode = "FlatFace"
sketch11.addGeometry(Part.Circle(V(99.400822, 30.809361, 0), V(0, 0, 1), 2.54), False)
sketch11.addConstraint([
    Sketcher.Constraint("Diameter", 0, Q("0.2 in")),
    Sketcher.Constraint("DistanceY", -1, 1, 0, 3, Q("30.809361 mm")),
    Sketcher.Constraint("DistanceX", -1, 1, 0, 3, Q("99.400822 mm")),
])
pocket10 = body.newObject("PartDesign::Pocket", "Pocket009")
pocket10.Profile = sketch11
pocket10.Length = Q("0.126 in")
pocket10.Reversed = True

sketch12 = body.newObject("Sketcher::SketchObject", "Sketch011")
sketch12.AttachmentSupport = (doc.getObject("XY_Plane"), [""])
sketch12.MapMode = "FlatFace"
sketch12.addGeometry([
    Part.LineSegment(V(-93.302614, 68.041011, 0), V(-33.771105, 106.435991, 0)),
    Part.LineSegment(V(-33.771105, 106.435991, 0), V(-19.207399, 77.007598, 0)),
    Part.LineSegment(V(-19.207399, 77.007598, 0), V(-77.912627, 47.95519, 0)),
    Part.LineSegment(V(-77.912627, 47.95519, 0), V(-93.302614, 68.041011, 0)),
], False)
sketch12.addConstraint([
    Sketcher.Constraint("Coincident", 0, 2, 1, 1),
    Sketcher.Constraint("Coincident", 1, 2, 2, 1),
    Sketcher.Constraint("Coincident", 2, 2, 3, 1),
    Sketcher.Constraint("Coincident", 3, 2, 0, 1),
    Sketcher.Constraint("Perpendicular", 1, 2),
    Sketcher.Constraint("DistanceX", 1, 2, -1, 1, Q("19.207399 mm")),
    Sketcher.Constraint("DistanceY", -1, 1, 1, 2, Q("77.007598 mm")),
    Sketcher.Constraint("DistanceY", 2, 2, 0, 2, Q("58.480801 mm")),
    Sketcher.Constraint("Distance", 0, Q("70.839079 mm")),
    Sketcher.Constraint("Distance", 1, Q("32.834918 mm")),
    Sketcher.Constraint("Distance", 3, Q("25.30399 mm")),
    Sketcher.Constraint("DistanceY", -1, 1, 0, 2, Q("106.435991 mm")),
])
pocket11 = body.newObject("PartDesign::Pocket", "Pocket010")
pocket11.Profile = sketch12
pocket11.Length = Q("0.126 in")
pocket11.Reversed = True
doc.recompute()

fillet2 = body.newObject("PartDesign::Fillet", "Fillet001")
fillet2.Base = (pocket11, edges_at(pocket11, [(-37.487, 67.961, 1.6)]))
fillet2.Radius = Q("0.5 in")

doc.recompute()
